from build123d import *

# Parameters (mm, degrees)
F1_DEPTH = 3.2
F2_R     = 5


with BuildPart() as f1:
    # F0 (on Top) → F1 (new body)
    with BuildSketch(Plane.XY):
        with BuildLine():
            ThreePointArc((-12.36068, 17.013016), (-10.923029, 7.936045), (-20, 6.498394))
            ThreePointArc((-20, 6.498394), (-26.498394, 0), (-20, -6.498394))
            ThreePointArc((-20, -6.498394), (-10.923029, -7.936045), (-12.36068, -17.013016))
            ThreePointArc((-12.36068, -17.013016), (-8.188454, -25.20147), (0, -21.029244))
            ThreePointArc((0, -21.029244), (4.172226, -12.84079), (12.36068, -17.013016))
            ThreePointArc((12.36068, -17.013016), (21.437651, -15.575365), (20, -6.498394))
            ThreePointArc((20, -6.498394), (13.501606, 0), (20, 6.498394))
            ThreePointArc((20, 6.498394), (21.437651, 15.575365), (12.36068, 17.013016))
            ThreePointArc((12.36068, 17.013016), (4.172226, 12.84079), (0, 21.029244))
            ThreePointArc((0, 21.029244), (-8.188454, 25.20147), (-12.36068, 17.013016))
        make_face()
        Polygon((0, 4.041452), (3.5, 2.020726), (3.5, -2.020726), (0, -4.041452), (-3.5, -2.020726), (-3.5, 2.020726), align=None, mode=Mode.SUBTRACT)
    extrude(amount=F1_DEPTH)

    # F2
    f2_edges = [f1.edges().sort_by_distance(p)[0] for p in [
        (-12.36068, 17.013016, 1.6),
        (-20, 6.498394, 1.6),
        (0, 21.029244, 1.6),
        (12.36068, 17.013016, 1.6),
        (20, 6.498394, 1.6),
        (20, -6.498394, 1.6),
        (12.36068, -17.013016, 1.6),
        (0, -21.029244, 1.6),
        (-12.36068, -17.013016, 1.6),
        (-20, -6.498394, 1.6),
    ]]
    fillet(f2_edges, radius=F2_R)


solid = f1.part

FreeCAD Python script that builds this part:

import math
import FreeCAD as App
import Part
import Sketcher

V = App.Vector
Q = App.Units.Quantity


def edges_at(feature, points):
    """Names of the edges that pass closest to the given points."""
    edges = feature.Shape.Edges
    near = lambda p: min(range(len(edges)), key=lambda i: edges[i].distToShape(Part.Vertex(*p))[0])
    return sorted({f"Edge{near(p) + 1}" for p in points})

doc = App.newDocument("Part")
body = doc.addObject("PartDesign::Body", "Body")

# Sketch on XY plane
sketch1 = body.newObject("Sketcher::SketchObject", "Sketch")
sketch1.AttachmentSupport = (doc.getObject("XY_Plane"), [""])
sketch1.MapMode = "FlatFace"
sketch1.addGeometry(Part.ArcOfCircle(Part.Circle(V(-16.2, 11.8, 0), V(0, 0, 1), 6.5), math.radians(-126), math.radians(54)), False)
sketch1.addGeometry(Part.ArcOfCircle(Part.Circle(V(-20, 0, 0), V(0, 0, 1), 6.5), math.radians(90), math.radians(270)), False)
sketch1.addGeometry(Part.ArcOfCircle(Part.Circle(V(-16.2, -11.8, 0), V(0, 0, 1), 6.5), math.radians(-54), math.radians(126)), False)
sketch1.addGeometry(Part.ArcOfCircle(Part.Circle(V(-6.2, -19, 0), V(0, 0, 1), 6.5), math.radians(162), math.radians(342)), False)
sketch1.addGeometry(Part.ArcOfCircle(Part.Circle(V(6.2, -19, 0), V(0, 0, 1), 6.5), math.radians(18), math.radians(198)), False)
sketch1.addGeometry(Part.ArcOfCircle(Part.Circle(V(16.2, -11.8, 0), V(0, 0, 1), 6.5), math.radians(-126), math.radians(54)), False)
sketch1.addGeometry(Part.ArcOfCircle(Part.Circle(V(20, 0, 0), V(0, 0, 1), 6.5), math.radians(90), math.radians(270)), False)
sketch1.addGeometry(Part.ArcOfCircle(Part.Circle(V(16.2, 11.8, 0), V(0, 0, 1), 6.5), math.radians(-54), math.radians(126)), False)
sketch1.addGeometry(Part.ArcOfCircle(Part.Circle(V(6.2, 19, 0), V(0, 0, 1), 6.5), math.radians(162), math.radians(342)), False)
sketch1.addGeometry(Part.ArcOfCircle(Part.Circle(V(-6.2, 19, 0), V(0, 0, 1), 6.5), math.radians(18), math.radians(198)), False)
sketch1.addGeometry(Part.LineSegment(V(-3.5, 2, 0), V(0, 4, 0)), False)
sketch1.addGeometry(Part.LineSegment(V(0, 4, 0), V(3.5, 2, 0)), False)
sketch1.addGeometry(Part.LineSegment(V(3.5, 2, 0), V(3.5, -2, 0)), False)
sketch1.addGeometry(Part.LineSegment(V(3.5, -2, 0), V(0, -4, 0)), False)
sketch1.addGeometry(Part.LineSegment(V(0, -4, 0), V(-3.5, -2, 0)), False)
sketch1.addGeometry(Part.LineSegment(V(-3.5, -2, 0), V(-3.5, 2, 0)), False)
sketch1.addConstraint(Sketcher.Constraint("Coincident", 0, 1, 1, 1))
sketch1.addConstraint(Sketcher.Constraint("Coincident", 1, 2, 2, 2))
sketch1.addConstraint(Sketcher.Constraint("Coincident", 2, 1, 3, 1))
sketch1.addConstraint(Sketcher.Constraint("Coincident", 3, 2, 4, 2))
sketch1.addConstraint(Sketcher.Constraint("Coincident", 4, 1, 5, 1))
sketch1.addConstraint(Sketcher.Constraint("Coincident", 5, 2, 6, 2))
sketch1.addConstraint(Sketcher.Constraint("Coincident", 6, 1, 7, 1))
sketch1.addConstraint(Sketcher.Constraint("Coincident", 7, 2, 8, 2))
sketch1.addConstraint(Sketcher.Constraint("Coincident", 8, 1, 9, 1))
sketch1.addConstraint(Sketcher.Constraint("Coincident", 9, 2, 0, 2))
sketch1.addConstraint(Sketcher.Constraint("Coincident", 10, 2, 11, 1))
sketch1.addConstraint(Sketcher.Constraint("Coincident", 11, 2, 12, 1))
sketch1.addConstraint(Sketcher.Constraint("Coincident", 12, 2, 13, 1))
sketch1.addConstraint(Sketcher.Constraint("Coincident", 13, 2, 14, 1))
sketch1.addConstraint(Sketcher.Constraint("Coincident", 14, 2, 15, 1))
sketch1.addConstraint(Sketcher.Constraint("Coincident", 15, 2, 10, 1))
sketch1.addConstraint(Sketcher.Constraint("Vertical", 12))
sketch1.addConstraint(Sketcher.Constraint("Vertical", 15))
sketch1.addConstraint(Sketcher.Constraint("Equal", 0, 1))
sketch1.addConstraint(Sketcher.Constraint("Equal", 1, 2))
sketch1.addConstraint(Sketcher.Constraint("Equal", 2, 3))
sketch1.addConstraint(Sketcher.Constraint("Equal", 3, 4))
sketch1.addConstraint(Sketcher.Constraint("Equal", 4, 5))
sketch1.addConstraint(Sketcher.Constraint("Equal", 5, 6))
sketch1.addConstraint(Sketcher.Constraint("Equal", 6, 7))
sketch1.addConstraint(Sketcher.Constraint("Equal", 7, 8))
sketch1.addConstraint(Sketcher.Constraint("Equal", 8, 9))
sketch1.addConstraint(Sketcher.Constraint("Symmetric", 0, 3, 5, 3, -1, 1))
sketch1.addConstraint(Sketcher.Constraint("Symmetric", 1, 3, 6, 3, -1, 1))
sketch1.addConstraint(Sketcher.Constraint("Symmetric", 2, 3, 7, 3, -1, 1))
sketch1.addConstraint(Sketcher.Constraint("Symmetric", 3, 3, 8, 3, -1, 1))
sketch1.addConstraint(Sketcher.Constraint("Symmetric", 4, 3, 9, 3, -1, 1))
sketch1.addConstraint(Sketcher.Constraint("Symmetric", 10, 2, 13, 2, -1, 1))
sketch1.addConstraint(Sketcher.Constraint("Symmetric", 11, 2, 14, 2, -1, 1))
sketch1.addConstraint(Sketcher.Constraint("Symmetric", 3, 3, 4, 3, -2))
sketch1.addConstraint(Sketcher.Constraint("Symmetric", 2, 3, 5, 3, -2))
sketch1.addConstraint(Sketcher.Constraint("PointOnObject", 1, 3, -1))
sketch1.addConstraint(Sketcher.Constraint("PointOnObject", 10, 2, -2))
sketch1.addConstraint(Sketcher.Constraint("Parallel", 10, 13))
sketch1.addConstraint(Sketcher.Constraint("Horizontal", 12, 2, 14, 2))
sketch1.addConstraint(Sketcher.Constraint("Vertical", 1, 3, 0, 1))
sketch1.addConstraint(Sketcher.Constraint("Angle", 10, Q("30.000001 deg")))
sketch1.addConstraint(Sketcher.Constraint("DistanceX", 1, 3, -1, 1, Q("20 mm")))
sketch1.addConstraint(Sketcher.Constraint("DistanceX", 2, 3, 3, 3, Q("10 mm")))
sketch1.addConstraint(Sketcher.Constraint("DistanceX", 14, 2, 12, 2, Q("7 mm")))
sketch1.addConstraint(Sketcher.Constraint("Radius", 0, Q("6.498394 mm")))
sketch1.addConstraint(Sketcher.Constraint("DistanceY", 12, 2, 12, 1, Q("4.041452 mm")))
sketch1.addConstraint(Sketcher.Constraint("DistanceY", 2, 3, 0, 1, Q("18.254099 mm")))
sketch1.addConstraint(Sketcher.Constraint("DistanceY", 3, 3, -1, 1, Q("19.02113 mm")))
pad1 = body.newObject("PartDesign::Pad", "Pad")
pad1.Profile = sketch1
pad1.Length = 3.2
doc.recompute()

fillet = body.newObject("PartDesign::Fillet", "Fillet")
fillet.Base = (pad1, edges_at(pad1, [
    (-12.361, 17.013, 1.6),
    (-20, 6.498, 1.6),
    (0, 21.029, 1.6),
    (12.361, 17.013, 1.6),
    (20, 6.498, 1.6),
    (20, -6.498, 1.6),
    (12.361, -17.013, 1.6),
    (0, -21.029, 1.6),
    (-12.361, -17.013, 1.6),
    (-20, -6.498, 1.6),
]))
fillet.Radius = 5

doc.recompute()
